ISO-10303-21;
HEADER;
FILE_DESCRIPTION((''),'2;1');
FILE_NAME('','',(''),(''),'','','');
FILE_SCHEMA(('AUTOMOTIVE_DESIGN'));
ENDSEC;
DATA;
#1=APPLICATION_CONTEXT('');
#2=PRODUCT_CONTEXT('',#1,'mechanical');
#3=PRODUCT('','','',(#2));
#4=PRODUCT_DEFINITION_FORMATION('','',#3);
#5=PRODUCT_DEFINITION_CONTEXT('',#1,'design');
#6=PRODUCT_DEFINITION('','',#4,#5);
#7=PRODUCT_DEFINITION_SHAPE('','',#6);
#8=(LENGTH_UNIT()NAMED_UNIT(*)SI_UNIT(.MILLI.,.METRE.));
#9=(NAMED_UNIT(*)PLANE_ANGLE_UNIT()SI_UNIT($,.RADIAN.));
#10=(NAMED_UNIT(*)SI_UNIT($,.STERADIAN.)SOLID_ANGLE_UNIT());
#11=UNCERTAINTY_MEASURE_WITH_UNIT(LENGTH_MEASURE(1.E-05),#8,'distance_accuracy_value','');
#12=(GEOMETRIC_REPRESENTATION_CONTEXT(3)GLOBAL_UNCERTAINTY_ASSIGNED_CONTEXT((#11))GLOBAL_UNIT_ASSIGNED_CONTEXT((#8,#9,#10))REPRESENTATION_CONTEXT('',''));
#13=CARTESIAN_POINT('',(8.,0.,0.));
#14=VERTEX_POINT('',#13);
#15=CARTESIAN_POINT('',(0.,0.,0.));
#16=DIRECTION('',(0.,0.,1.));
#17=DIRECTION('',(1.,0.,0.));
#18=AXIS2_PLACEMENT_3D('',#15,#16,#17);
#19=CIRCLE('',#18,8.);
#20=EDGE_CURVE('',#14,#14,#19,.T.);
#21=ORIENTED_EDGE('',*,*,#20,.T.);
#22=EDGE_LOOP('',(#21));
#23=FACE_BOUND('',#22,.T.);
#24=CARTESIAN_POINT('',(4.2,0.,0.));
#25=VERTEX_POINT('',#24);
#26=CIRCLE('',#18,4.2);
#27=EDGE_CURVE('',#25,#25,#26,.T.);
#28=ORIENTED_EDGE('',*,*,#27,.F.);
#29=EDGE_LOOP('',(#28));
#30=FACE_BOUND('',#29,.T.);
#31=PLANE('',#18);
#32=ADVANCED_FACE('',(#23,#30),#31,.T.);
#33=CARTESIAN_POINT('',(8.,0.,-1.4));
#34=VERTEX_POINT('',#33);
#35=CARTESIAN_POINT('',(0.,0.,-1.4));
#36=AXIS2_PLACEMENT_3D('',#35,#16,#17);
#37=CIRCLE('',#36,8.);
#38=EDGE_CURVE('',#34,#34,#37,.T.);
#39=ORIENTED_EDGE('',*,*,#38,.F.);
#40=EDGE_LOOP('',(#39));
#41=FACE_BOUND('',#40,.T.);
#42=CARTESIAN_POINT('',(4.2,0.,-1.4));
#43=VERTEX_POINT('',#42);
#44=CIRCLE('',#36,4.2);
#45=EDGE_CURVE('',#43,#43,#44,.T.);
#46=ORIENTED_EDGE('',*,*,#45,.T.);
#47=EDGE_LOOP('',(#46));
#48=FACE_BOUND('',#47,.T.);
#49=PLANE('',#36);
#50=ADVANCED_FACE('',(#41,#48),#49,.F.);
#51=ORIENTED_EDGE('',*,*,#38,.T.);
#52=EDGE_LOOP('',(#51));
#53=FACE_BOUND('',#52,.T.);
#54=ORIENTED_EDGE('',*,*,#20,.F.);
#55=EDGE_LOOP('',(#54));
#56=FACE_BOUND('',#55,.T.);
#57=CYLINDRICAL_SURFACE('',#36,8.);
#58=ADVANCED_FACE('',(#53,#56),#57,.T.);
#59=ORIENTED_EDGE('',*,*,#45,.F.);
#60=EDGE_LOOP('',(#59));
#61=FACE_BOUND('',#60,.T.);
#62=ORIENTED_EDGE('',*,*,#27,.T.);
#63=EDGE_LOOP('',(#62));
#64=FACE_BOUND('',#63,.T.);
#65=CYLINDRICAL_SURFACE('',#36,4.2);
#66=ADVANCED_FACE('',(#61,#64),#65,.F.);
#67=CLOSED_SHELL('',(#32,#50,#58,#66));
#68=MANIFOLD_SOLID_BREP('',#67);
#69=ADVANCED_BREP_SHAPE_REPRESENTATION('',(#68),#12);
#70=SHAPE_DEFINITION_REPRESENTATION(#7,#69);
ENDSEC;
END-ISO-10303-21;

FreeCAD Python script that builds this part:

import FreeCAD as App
import Part
import Sketcher
Q = App.Units.Quantity

doc = App.newDocument("Part")
params = doc.addObject("Spreadsheet::Sheet", "Params")
for row, (alias, value) in enumerate([
    ("sketch1_diameter", "16 mm"),
    ("sketch1_diameter2", "8.4 mm"),
    ("pad1_length", "1.4 mm"),
], start=1):
    params.set(f"A{row}", alias)
    params.set(f"B{row}", "=" + value)
    params.setAlias(f"B{row}", alias)

body = doc.addObject("PartDesign::Body", "Body")

# Sketch on XY plane
sketch1 = doc.addObject("Sketcher::SketchObject", "Sketch")
body.addObject(sketch1)
sketch1.AttachmentSupport = (doc.XY_Plane, [""])
sketch1.MapMode = "FlatFace"
sketch1.addGeometry(Part.Circle(App.Vector(0, 0, 0), App.Vector(0, 0, 1), 8), False)
sketch1.addGeometry(Part.Circle(App.Vector(0, 0, 0), App.Vector(0, 0, 1), 4.2), False)
sketch1.addConstraint(Sketcher.Constraint("Coincident", 0, 3, -1, 1))
sketch1.addConstraint(Sketcher.Constraint("Coincident", 1, 3, -1, 1))
sketch1.addConstraint(Sketcher.Constraint("Diameter", 0, Q("16 mm")))
sketch1.addConstraint(Sketcher.Constraint("Diameter", 1, Q("8.4 mm")))
sketch1.setExpression("Constraints[2]", "Params.sketch1_diameter")
sketch1.setExpression("Constraints[3]", "Params.sketch1_diameter2")
pad1 = doc.addObject("PartDesign::Pad", "Pad")
body.addObject(pad1)
pad1.Profile = sketch1
pad1.setExpression("Length", "Params.pad1_length")
pad1.Reversed = True

doc.recompute()
